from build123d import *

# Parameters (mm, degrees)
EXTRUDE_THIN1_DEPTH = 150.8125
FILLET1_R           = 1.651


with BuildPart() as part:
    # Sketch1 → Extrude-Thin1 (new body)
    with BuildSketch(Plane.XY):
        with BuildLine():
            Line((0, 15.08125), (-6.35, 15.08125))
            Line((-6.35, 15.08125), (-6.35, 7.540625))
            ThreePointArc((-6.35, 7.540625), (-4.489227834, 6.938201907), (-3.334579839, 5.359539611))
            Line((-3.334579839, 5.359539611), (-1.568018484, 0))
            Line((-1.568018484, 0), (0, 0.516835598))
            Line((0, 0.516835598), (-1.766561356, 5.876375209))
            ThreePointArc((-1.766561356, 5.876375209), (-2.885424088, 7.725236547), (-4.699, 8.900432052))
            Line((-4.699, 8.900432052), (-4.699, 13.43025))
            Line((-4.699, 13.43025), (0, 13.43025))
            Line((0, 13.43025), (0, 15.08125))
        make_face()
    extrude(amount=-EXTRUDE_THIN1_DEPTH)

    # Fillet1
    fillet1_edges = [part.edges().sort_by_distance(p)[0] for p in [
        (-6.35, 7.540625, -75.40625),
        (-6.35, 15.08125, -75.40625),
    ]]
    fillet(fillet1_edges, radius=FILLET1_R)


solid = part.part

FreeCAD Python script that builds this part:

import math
import FreeCAD as App
import Part
import Sketcher

V = App.Vector
Q = App.Units.Quantity


def edges_at(feature, points):
    """Names of the edges that pass closest to the given points."""
    edges = feature.Shape.Edges
    near = lambda p: min(range(len(edges)), key=lambda i: edges[i].distToShape(Part.Vertex(*p))[0])
    return sorted({f"Edge{near(p) + 1}" for p in points})

doc = App.newDocument("Part")
body = doc.addObject("PartDesign::Body", "Body")

# Sketch on XY plane
sketch1 = body.newObject("Sketcher::SketchObject", "Sketch")
sketch1.AttachmentSupport = (doc.getObject("XY_Plane"), [""])
sketch1.MapMode = "FlatFace"
sketch1.addGeometry(Part.LineSegment(V(0, 15.08125, 0), V(-6.35, 15.08125, 0)), False)
sketch1.addGeometry(Part.LineSegment(V(-6.35, 15.08125, 0), V(-6.35, 7.540625, 0)), False)
sketch1.addGeometry(Part.ArcOfCircle(Part.Circle(V(-6.35, 4.365625, 0), V(0, 0, 1), 3.175), math.radians(18.242771), math.radians(90)), False)
sketch1.addGeometry(Part.LineSegment(V(-3.33458, 5.35954, 0), V(-1.568018, 0, 0)), False)
sketch1.addGeometry(Part.LineSegment(V(-1.568018, 0, 0), V(0, 0.516836, 0)), False)
sketch1.addGeometry(Part.LineSegment(V(0, 0.516836, 0), V(-1.766561, 5.876375, 0)), False)
sketch1.addGeometry(Part.ArcOfCircle(Part.Circle(V(-6.35, 4.365625, 0), V(0, 0, 1), 4.826), math.radians(18.24277), math.radians(69.99481)), False)
sketch1.addGeometry(Part.LineSegment(V(-4.699, 8.900432, 0), V(-4.699, 13.43025, 0)), False)
sketch1.addGeometry(Part.LineSegment(V(-4.699, 13.43025, 0), V(0, 13.43025, 0)), False)
sketch1.addGeometry(Part.LineSegment(V(0, 13.43025, 0), V(0, 15.08125, 0)), False)
sketch1.addConstraint(Sketcher.Constraint("Coincident", 0, 2, 1, 1))
sketch1.addConstraint(Sketcher.Constraint("Coincident", 1, 2, 2, 2))
sketch1.addConstraint(Sketcher.Constraint("Tangent", 2, 1, 3, 1))
sketch1.addConstraint(Sketcher.Constraint("Coincident", 3, 2, 4, 1))
sketch1.addConstraint(Sketcher.Constraint("Coincident", 4, 2, 5, 1))
sketch1.addConstraint(Sketcher.Constraint("Tangent", 5, 2, 6, 1))
sketch1.addConstraint(Sketcher.Constraint("Coincident", 6, 2, 7, 1))
sketch1.addConstraint(Sketcher.Constraint("Coincident", 7, 2, 8, 1))
sketch1.addConstraint(Sketcher.Constraint("Coincident", 8, 2, 9, 1))
sketch1.addConstraint(Sketcher.Constraint("Coincident", 9, 2, 0, 1))
sketch1.addConstraint(Sketcher.Constraint("Horizontal", 0))
sketch1.addConstraint(Sketcher.Constraint("Vertical", 1))
sketch1.addConstraint(Sketcher.Constraint("Vertical", 7))
sketch1.addConstraint(Sketcher.Constraint("Horizontal", 8))
sketch1.addConstraint(Sketcher.Constraint("Vertical", 9))
sketch1.addConstraint(Sketcher.Constraint("Coincident", 6, 3, 2, 3))
sketch1.addConstraint(Sketcher.Constraint("PointOnObject", 3, 2, -1))
sketch1.addConstraint(Sketcher.Constraint("PointOnObject", 4, 2, -2))
sketch1.addConstraint(Sketcher.Constraint("PointOnObject", 8, 2, -2))
sketch1.addConstraint(Sketcher.Constraint("Perpendicular", 3, 4))
sketch1.addConstraint(Sketcher.Constraint("Perpendicular", 4, 5))
sketch1.addConstraint(Sketcher.Constraint("Vertical", 6, 3, 0, 2))
sketch1.addConstraint(Sketcher.Constraint("Radius", 6, Q("0.19 in")))
sketch1.addConstraint(Sketcher.Constraint("Radius", 2, Q("0.125 in")))
sketch1.addConstraint(Sketcher.Constraint("DistanceX", 0, 2, 0, 1, Q("0.25 in")))
sketch1.addConstraint(Sketcher.Constraint("DistanceX", 8, 1, 8, 2, Q("0.185 in")))
sketch1.addConstraint(Sketcher.Constraint("DistanceY", 1, 2, 1, 1, Q("0.296875 in")))
sketch1.addConstraint(Sketcher.Constraint("DistanceY", 9, 1, 9, 2, Q("0.065 in")))
sketch1.addConstraint(Sketcher.Constraint("DistanceY", -1, 1, 2, 3, Q("0.171875 in")))
pad1 = body.newObject("PartDesign::Pad", "Pad")
pad1.Profile = sketch1
pad1.Length = Q("5.9375 in")
pad1.Reversed = True
doc.recompute()

fillet = body.newObject("PartDesign::Fillet", "Fillet")
fillet.Base = (pad1, edges_at(pad1, [(-6.35, 7.541, -75.406), (-6.35, 15.081, -75.406)]))
fillet.Radius = Q("0.065 in")

doc.recompute()
